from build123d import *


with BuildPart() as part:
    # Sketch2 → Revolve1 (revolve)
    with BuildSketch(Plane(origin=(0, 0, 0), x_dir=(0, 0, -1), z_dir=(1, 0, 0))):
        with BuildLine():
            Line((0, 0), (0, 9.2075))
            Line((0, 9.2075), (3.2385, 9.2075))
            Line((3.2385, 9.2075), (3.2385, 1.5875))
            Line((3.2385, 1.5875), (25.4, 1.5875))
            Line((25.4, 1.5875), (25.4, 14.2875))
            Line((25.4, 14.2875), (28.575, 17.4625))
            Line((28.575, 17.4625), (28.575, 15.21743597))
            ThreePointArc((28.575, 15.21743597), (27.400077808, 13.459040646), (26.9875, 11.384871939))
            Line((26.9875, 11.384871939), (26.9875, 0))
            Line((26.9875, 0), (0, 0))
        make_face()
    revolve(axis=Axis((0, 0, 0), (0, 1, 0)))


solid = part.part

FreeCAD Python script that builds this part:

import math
import FreeCAD as App
import Part
import Sketcher

V = App.Vector
Q = App.Units.Quantity

doc = App.newDocument("Part")
body = doc.addObject("PartDesign::Body", "Body")

sketch1 = doc.addObject("Sketcher::SketchObject", "Sketch")
body.addObject(sketch1)
sketch1.AttachmentSupport = (doc.YZ_Plane, [""])
sketch1.MapMode = "FlatFace"
sketch1.addGeometry(Part.LineSegment(V(9.2, 0, 0), V(0, 0, 0)), False)
sketch1.addGeometry(Part.LineSegment(V(0, 0, 0), V(0, -27, 0)), False)
sketch1.addGeometry(Part.LineSegment(V(0, -27, 0), V(11.4, -27, 0)), False)
sketch1.addGeometry(Part.ArcOfCircle(Part.Circle(V(11.4, -32.4, 0), V(0, 0, 1), 5.4), math.radians(45), math.radians(90)), False)
sketch1.addGeometry(Part.LineSegment(V(15.2, -28.6, 0), V(17.5, -28.6, 0)), False)
sketch1.addGeometry(Part.LineSegment(V(17.5, -28.6, 0), V(14.3, -25.4, 0)), False)
sketch1.addGeometry(Part.LineSegment(V(14.3, -25.4, 0), V(1.6, -25.4, 0)), False)
sketch1.addGeometry(Part.LineSegment(V(1.6, -25.4, 0), V(1.6, -3.2, 0)), False)
sketch1.addGeometry(Part.LineSegment(V(1.6, -3.2, 0), V(9.2, -3.2, 0)), False)
sketch1.addGeometry(Part.LineSegment(V(9.2, -3.2, 0), V(9.2, 0, 0)), False)
sketch1.addConstraint(Sketcher.Constraint("Coincident", 0, 2, 1, 1))
sketch1.addConstraint(Sketcher.Constraint("Coincident", 1, 2, 2, 1))
sketch1.addConstraint(Sketcher.Constraint("Tangent", 2, 2, 3, 2))
sketch1.addConstraint(Sketcher.Constraint("Coincident", 3, 1, 4, 1))
sketch1.addConstraint(Sketcher.Constraint("Coincident", 4, 2, 5, 1))
sketch1.addConstraint(Sketcher.Constraint("Coincident", 5, 2, 6, 1))
sketch1.addConstraint(Sketcher.Constraint("Coincident", 6, 2, 7, 1))
sketch1.addConstraint(Sketcher.Constraint("Coincident", 7, 2, 8, 1))
sketch1.addConstraint(Sketcher.Constraint("Coincident", 8, 2, 9, 1))
sketch1.addConstraint(Sketcher.Constraint("Coincident", 9, 2, 0, 1))
sketch1.addConstraint(Sketcher.Constraint("Horizontal", 0))
sketch1.addConstraint(Sketcher.Constraint("Vertical", 1))
sketch1.addConstraint(Sketcher.Constraint("Horizontal", 2))
sketch1.addConstraint(Sketcher.Constraint("Horizontal", 4))
sketch1.addConstraint(Sketcher.Constraint("Horizontal", 6))
sketch1.addConstraint(Sketcher.Constraint("Vertical", 7))
sketch1.addConstraint(Sketcher.Constraint("Horizontal", 8))
sketch1.addConstraint(Sketcher.Constraint("Vertical", 9))
sketch1.addConstraint(Sketcher.Constraint("Coincident", 0, 2, -1, 1))
sketch1.addConstraint(Sketcher.Constraint("DistanceX", 6, 2, 6, 1, Q("0.5 in")))
sketch1.addConstraint(Sketcher.Constraint("DistanceX", 8, 1, 8, 2, Q("0.3 in")))
sketch1.addConstraint(Sketcher.Constraint("DistanceY", 5, 2, -1, 1, Q("1 in")))
sketch1.addConstraint(Sketcher.Constraint("Angle", 5, Q("135 deg")))
sketch1.addConstraint(Sketcher.Constraint("DistanceY", 1, 2, 1, 1, Q("1.0625 in")))
sketch1.addConstraint(Sketcher.Constraint("DistanceX", 0, 2, 0, 1, Q("0.3625 in")))
sketch1.addConstraint(Sketcher.Constraint("DistanceY", 7, 1, 7, 2, Q("0.8725 in")))
sketch1.addConstraint(Sketcher.Constraint("DistanceY", 3, 1, -1, 1, Q("1.125 in")))
sketch1.addConstraint(Sketcher.Constraint("Radius", 3, 5.420064))
sketch1.addConstraint(Sketcher.Constraint("DistanceX", 2, 1, 2, 2, 11.384872))
revolution = doc.addObject("PartDesign::Revolution", "Revolution")
body.addObject(revolution)
revolution.Profile = sketch1
revolution.ReferenceAxis = (sketch1, ["H_Axis"])
revolution.Angle = 360

doc.recompute()
